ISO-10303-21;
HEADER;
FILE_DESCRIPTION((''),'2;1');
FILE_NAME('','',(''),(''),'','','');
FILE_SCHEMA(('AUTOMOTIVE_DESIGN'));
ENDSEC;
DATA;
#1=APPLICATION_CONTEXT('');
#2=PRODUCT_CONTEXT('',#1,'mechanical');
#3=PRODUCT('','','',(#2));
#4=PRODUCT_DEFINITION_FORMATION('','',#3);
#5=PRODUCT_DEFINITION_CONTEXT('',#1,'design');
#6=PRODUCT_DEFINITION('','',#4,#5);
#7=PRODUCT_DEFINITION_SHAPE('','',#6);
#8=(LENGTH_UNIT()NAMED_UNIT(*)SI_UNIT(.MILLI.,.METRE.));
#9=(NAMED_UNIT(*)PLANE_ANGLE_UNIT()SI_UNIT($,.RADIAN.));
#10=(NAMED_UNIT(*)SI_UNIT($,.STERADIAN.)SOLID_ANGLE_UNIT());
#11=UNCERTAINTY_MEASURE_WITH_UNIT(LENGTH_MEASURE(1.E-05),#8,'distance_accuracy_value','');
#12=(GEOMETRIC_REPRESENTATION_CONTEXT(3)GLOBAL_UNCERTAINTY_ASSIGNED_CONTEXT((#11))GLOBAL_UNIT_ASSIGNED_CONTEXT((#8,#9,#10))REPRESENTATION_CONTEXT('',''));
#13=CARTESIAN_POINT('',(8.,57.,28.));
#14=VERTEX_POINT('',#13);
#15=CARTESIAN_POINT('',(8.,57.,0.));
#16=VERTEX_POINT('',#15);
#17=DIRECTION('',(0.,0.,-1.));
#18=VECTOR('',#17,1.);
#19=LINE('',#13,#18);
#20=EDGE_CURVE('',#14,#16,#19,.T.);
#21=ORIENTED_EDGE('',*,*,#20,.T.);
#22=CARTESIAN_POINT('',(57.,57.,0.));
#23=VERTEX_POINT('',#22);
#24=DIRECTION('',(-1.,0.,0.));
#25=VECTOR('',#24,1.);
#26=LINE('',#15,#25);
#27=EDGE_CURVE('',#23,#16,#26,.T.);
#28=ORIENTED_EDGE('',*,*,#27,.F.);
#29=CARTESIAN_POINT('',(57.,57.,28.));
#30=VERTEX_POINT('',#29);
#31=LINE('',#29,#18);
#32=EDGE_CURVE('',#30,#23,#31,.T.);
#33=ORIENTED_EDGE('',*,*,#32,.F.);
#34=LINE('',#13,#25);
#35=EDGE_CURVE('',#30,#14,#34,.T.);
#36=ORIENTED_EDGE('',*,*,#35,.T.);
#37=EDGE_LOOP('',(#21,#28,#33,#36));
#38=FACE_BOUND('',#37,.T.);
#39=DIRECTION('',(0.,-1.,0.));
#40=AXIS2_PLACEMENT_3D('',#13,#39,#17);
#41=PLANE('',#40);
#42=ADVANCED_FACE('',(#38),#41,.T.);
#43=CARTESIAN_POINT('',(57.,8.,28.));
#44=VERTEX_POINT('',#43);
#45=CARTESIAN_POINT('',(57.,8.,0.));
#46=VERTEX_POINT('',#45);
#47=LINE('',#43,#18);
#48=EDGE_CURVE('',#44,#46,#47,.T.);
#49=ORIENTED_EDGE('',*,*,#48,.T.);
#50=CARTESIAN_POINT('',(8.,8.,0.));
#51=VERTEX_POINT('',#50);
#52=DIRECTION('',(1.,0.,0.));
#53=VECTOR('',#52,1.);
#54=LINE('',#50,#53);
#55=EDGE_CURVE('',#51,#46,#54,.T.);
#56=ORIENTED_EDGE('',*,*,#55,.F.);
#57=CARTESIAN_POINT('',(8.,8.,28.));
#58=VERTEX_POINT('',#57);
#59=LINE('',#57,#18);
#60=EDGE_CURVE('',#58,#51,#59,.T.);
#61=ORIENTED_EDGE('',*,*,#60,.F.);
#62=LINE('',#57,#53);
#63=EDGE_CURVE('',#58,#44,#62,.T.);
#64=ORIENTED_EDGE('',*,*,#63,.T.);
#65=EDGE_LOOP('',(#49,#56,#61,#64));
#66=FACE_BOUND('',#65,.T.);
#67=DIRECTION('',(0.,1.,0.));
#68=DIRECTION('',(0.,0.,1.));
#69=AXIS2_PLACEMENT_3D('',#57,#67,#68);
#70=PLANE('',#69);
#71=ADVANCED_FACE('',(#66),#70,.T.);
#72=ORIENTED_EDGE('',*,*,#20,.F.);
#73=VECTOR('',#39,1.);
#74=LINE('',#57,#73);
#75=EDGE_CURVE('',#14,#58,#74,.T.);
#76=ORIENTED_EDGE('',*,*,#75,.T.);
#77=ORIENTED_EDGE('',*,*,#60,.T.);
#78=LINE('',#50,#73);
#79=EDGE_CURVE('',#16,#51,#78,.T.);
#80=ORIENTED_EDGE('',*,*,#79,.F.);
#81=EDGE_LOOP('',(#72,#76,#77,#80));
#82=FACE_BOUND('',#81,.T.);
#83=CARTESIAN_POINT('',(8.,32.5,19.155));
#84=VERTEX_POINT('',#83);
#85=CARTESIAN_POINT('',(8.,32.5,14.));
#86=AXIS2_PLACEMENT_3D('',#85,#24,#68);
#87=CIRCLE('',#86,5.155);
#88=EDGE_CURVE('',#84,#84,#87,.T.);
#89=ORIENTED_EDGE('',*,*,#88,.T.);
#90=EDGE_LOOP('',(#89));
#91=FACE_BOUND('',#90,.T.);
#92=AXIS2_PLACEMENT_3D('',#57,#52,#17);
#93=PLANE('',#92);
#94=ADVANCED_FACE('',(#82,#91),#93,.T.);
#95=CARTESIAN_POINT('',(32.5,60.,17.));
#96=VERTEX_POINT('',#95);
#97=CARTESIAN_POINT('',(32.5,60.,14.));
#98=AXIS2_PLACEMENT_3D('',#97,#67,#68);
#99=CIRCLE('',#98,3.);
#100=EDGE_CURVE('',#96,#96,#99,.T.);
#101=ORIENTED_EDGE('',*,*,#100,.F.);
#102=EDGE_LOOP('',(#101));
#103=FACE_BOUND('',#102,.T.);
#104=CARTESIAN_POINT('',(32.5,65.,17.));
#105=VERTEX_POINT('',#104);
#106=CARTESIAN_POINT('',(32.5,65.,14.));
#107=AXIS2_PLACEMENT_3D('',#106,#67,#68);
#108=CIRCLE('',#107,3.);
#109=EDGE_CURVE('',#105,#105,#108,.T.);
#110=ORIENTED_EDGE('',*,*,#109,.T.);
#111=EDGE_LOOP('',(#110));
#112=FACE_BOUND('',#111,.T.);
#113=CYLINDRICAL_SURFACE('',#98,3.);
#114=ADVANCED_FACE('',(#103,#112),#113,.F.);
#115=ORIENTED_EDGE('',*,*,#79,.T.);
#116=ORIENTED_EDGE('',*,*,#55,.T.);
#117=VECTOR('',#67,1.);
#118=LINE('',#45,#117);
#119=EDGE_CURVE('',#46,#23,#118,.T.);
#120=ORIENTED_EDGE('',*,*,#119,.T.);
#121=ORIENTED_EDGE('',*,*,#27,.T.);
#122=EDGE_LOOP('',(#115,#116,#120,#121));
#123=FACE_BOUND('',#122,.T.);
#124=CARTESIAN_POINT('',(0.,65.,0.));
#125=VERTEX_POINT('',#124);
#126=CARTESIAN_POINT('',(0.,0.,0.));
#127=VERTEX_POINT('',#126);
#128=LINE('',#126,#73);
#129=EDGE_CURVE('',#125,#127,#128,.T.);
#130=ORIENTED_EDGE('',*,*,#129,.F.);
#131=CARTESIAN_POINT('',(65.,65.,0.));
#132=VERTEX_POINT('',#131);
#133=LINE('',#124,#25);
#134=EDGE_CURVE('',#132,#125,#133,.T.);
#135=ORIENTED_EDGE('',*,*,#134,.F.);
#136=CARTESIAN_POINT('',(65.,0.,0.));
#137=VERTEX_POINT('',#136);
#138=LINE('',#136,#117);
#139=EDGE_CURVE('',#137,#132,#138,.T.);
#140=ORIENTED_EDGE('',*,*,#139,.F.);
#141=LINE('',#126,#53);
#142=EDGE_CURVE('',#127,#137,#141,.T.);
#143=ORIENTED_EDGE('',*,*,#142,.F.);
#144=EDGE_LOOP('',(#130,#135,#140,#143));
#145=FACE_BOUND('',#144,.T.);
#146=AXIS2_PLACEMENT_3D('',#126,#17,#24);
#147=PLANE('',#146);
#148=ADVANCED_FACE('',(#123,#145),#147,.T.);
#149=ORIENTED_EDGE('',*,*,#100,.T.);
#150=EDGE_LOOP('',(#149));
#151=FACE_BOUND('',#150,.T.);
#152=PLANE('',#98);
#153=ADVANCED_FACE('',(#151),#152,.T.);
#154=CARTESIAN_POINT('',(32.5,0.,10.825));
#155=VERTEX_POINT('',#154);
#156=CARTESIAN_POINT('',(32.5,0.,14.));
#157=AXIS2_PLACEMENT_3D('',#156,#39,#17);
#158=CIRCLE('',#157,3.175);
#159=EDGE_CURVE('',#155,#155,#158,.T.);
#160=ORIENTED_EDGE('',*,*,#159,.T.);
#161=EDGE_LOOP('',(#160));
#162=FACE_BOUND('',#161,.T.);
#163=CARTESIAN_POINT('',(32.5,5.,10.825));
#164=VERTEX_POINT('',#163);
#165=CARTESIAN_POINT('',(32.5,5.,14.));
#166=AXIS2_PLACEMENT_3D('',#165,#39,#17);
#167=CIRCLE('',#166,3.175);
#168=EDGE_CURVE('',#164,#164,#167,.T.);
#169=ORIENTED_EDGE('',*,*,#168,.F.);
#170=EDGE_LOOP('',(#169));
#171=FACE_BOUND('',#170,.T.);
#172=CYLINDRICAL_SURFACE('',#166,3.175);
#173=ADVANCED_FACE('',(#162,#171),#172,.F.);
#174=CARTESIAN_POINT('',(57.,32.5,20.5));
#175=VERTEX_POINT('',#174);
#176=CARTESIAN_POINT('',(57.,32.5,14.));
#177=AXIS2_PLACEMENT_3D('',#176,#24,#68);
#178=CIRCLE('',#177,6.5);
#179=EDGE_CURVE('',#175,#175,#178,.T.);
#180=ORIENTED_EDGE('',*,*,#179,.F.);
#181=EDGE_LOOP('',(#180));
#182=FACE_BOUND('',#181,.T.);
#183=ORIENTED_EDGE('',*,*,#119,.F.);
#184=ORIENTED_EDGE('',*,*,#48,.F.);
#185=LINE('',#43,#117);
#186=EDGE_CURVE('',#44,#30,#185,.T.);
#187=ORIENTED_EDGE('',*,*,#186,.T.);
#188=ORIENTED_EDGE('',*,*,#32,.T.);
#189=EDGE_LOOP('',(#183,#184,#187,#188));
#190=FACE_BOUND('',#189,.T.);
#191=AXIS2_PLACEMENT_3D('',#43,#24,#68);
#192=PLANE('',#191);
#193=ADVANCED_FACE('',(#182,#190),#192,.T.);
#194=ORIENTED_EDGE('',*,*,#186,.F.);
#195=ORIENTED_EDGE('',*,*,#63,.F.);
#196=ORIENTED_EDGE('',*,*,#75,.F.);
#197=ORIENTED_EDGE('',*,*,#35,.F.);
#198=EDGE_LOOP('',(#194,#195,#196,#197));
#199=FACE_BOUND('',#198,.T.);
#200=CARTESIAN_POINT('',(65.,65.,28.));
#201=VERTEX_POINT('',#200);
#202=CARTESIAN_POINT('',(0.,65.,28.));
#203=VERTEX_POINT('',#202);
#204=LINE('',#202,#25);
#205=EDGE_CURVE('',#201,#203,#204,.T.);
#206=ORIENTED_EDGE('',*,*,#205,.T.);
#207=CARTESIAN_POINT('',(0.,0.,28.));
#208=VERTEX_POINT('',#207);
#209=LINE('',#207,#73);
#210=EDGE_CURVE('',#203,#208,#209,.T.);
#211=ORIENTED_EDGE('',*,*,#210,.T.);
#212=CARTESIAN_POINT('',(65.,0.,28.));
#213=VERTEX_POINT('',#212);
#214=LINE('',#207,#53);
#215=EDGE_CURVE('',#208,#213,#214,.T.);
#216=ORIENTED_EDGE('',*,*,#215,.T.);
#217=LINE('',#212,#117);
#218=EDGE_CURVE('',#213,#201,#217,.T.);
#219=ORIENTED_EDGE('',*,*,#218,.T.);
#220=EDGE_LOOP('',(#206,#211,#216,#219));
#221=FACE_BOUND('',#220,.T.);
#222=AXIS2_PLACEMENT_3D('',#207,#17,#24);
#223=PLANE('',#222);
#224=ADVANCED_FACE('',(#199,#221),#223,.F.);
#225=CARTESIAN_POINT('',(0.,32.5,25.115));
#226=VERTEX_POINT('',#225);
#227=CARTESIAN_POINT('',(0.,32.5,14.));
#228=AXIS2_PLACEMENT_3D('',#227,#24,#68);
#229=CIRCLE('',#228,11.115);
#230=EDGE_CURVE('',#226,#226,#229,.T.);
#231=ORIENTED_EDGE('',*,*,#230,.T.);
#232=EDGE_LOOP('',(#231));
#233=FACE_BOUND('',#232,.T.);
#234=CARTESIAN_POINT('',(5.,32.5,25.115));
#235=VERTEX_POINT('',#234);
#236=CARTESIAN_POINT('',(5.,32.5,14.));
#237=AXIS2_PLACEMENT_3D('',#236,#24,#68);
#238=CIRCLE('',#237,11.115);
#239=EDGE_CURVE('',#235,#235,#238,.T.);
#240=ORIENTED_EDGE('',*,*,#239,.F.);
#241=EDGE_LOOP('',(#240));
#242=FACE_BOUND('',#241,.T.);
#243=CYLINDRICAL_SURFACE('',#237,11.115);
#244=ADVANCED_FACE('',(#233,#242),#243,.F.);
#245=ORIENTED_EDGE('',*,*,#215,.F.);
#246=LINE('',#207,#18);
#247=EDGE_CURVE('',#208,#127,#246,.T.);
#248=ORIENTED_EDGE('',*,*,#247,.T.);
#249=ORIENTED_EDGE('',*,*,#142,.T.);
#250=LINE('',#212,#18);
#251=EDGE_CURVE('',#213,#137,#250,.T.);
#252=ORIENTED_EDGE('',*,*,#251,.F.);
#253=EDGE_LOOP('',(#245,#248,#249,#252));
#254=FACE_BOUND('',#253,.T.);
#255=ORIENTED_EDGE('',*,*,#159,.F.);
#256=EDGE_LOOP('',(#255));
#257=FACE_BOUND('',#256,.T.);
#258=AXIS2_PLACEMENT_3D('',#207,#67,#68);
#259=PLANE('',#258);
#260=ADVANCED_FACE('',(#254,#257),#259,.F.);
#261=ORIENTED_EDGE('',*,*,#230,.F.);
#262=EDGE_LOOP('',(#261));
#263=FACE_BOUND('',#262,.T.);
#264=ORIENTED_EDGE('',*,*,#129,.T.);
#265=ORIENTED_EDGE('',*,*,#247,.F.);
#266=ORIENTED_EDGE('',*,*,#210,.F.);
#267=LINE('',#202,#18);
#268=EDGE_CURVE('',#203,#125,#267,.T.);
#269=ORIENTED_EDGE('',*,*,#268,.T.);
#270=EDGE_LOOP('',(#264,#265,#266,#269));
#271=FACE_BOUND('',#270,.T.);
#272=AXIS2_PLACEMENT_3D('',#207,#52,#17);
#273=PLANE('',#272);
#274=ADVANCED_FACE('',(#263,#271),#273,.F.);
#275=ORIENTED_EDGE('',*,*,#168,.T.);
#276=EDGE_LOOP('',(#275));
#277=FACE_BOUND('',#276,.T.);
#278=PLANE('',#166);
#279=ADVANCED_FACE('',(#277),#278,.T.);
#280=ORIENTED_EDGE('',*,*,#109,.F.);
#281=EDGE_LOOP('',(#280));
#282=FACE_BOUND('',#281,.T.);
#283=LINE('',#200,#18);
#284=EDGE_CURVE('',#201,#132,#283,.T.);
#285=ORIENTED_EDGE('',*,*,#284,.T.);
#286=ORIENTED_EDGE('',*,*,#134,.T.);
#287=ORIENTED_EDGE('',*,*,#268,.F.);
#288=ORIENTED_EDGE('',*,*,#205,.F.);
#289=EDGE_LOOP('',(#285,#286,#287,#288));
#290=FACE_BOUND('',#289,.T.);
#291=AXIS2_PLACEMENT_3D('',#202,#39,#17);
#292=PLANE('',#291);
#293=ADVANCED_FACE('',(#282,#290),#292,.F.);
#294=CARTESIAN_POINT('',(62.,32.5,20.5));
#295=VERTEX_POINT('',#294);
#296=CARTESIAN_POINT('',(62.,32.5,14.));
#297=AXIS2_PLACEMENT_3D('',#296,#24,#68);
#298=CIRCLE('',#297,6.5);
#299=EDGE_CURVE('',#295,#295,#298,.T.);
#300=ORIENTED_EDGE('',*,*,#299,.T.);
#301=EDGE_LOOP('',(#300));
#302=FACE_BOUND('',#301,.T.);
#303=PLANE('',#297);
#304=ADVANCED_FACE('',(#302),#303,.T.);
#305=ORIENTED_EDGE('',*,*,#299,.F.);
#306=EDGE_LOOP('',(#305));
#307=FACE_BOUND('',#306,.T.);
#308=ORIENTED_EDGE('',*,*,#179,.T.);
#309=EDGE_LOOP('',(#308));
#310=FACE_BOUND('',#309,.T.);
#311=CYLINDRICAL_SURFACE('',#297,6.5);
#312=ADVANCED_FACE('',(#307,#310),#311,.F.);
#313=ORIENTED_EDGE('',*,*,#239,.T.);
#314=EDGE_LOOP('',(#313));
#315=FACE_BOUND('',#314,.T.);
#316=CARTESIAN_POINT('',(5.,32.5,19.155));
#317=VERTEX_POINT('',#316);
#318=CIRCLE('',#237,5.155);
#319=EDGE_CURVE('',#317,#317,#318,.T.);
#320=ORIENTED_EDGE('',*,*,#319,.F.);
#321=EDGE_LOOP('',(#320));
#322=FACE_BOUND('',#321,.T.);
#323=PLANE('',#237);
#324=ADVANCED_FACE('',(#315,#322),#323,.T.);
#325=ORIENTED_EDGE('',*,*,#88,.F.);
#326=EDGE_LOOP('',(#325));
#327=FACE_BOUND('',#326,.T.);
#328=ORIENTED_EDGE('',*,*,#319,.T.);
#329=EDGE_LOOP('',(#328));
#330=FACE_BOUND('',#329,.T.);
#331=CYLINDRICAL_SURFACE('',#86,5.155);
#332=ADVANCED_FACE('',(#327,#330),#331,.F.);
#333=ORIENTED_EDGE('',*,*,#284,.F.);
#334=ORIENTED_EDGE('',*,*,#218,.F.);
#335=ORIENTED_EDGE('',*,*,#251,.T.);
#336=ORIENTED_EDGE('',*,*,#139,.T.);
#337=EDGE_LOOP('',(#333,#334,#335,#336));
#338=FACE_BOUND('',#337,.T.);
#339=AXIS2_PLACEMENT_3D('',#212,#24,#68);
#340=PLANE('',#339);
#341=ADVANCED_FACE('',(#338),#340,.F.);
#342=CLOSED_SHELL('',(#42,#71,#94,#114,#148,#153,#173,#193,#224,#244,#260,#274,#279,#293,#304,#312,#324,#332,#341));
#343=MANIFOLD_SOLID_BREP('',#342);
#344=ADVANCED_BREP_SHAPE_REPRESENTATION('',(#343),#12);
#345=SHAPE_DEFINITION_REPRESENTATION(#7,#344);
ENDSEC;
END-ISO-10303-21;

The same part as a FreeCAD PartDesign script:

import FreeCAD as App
import Part
import Sketcher
from FreeCAD import Vector


def add_polygon(sketch, points):
    """Adds a closed chain of lines whose ends are joined by coincident constraints."""
    first, n = sketch.GeometryCount, len(points)
    for a, b in zip(points, points[1:] + points[:1]):
        sketch.addGeometry(Part.LineSegment(App.Vector(*a, 0), App.Vector(*b, 0)), False)
    for i in range(n):
        sketch.addConstraint(Sketcher.Constraint("Coincident", first + i, 2, first + (i + 1) % n, 1))

doc = App.newDocument("Part")
body = doc.addObject("PartDesign::Body", "Body")

# Sketch on XY plane
sketch1 = body.newObject("Sketcher::SketchObject", "Sketch")
sketch1.AttachmentSupport = (doc.getObject("XY_Plane"), [""])
sketch1.MapMode = "FlatFace"
add_polygon(sketch1, [(0, 65), (0, 0), (65, 0), (65, 65)])  # lines 0-3
add_polygon(sketch1, [(57, 8), (8, 8), (8, 57), (57, 57)])  # lines 4-7
sketch1.addConstraint([
    Sketcher.Constraint("Vertical", 0),
    Sketcher.Constraint("Horizontal", 1),
    Sketcher.Constraint("Vertical", 2),
    Sketcher.Constraint("Horizontal", 3),
    Sketcher.Constraint("Horizontal", 4),
    Sketcher.Constraint("Vertical", 5),
    Sketcher.Constraint("Horizontal", 6),
    Sketcher.Constraint("Vertical", 7),
    Sketcher.Constraint("Coincident", 0, 2, -1, 1),
    Sketcher.Constraint("Equal", 3, 0),
    Sketcher.Constraint("Equal", 6, 5),
    Sketcher.Constraint("DistanceX", 1, 1, 1, 2, 65.0),
    Sketcher.Constraint("DistanceX", 4, 2, 4, 1, 49.0),
    Sketcher.Constraint("DistanceX", -1, 1, 4, 2, 8.0),
    Sketcher.Constraint("DistanceY", -1, 1, 4, 2, 8.0),
])
pad1 = body.newObject("PartDesign::Pad", "Pad")
pad1.Profile = sketch1
pad1.Length = 28

# Sketch on YZ plane
sketch2 = body.newObject("Sketcher::SketchObject", "Sketch001")
sketch2.AttachmentSupport = (doc.getObject("YZ_Plane"), [""])
sketch2.MapMode = "FlatFace"
sketch2.addGeometry(Part.Circle(Vector(32, 14, 0), Vector(0, 0, 1), 11), False)
sketch2.addConstraint([
    Sketcher.Constraint("Diameter", 0, 22.23),
    Sketcher.Constraint("DistanceY", -1, 1, 0, 3, 14.0),
    Sketcher.Constraint("DistanceX", -1, 1, 0, 3, 32.5),
])
pocket1 = body.newObject("PartDesign::Pocket", "Pocket")
pocket1.Profile = sketch2
pocket1.Length = 5
pocket1.Reversed = True

# Sketch on YZ plane
sketch3 = body.newObject("Sketcher::SketchObject", "Sketch002")
sketch3.AttachmentSupport = (doc.getObject("YZ_Plane"), [""])
sketch3.MapMode = "FlatFace"
sketch3.addGeometry(Part.Circle(Vector(32, 14, 0), Vector(0, 0, 1), 5), False)
sketch3.addConstraint([
    Sketcher.Constraint("Diameter", 0, 10.31),
    Sketcher.Constraint("DistanceY", -1, 1, 0, 3, 14.0),
    Sketcher.Constraint("DistanceX", -1, 1, 0, 3, 32.5),
])
pocket2 = body.newObject("PartDesign::Pocket", "Pocket001")
pocket2.Profile = sketch3
pocket2.Length = 8
pocket2.Reversed = True

# Sketch on YZ plane
sketch4 = body.newObject("Sketcher::SketchObject", "Sketch003")
sketch4.AttachmentSupport = (doc.getObject("YZ_Plane"), [""])
sketch4.MapMode = "FlatFace"
sketch4.AttachmentOffset = App.Placement(Vector(0, 0, 57), App.Rotation())
sketch4.addGeometry(Part.Circle(Vector(32, 14, 0), Vector(0, 0, 1), 6), False)
sketch4.addConstraint([
    Sketcher.Constraint("Diameter", 0, 13.0),
    Sketcher.Constraint("DistanceY", -1, 1, 0, 3, 14.0),
    Sketcher.Constraint("DistanceX", -1, 1, 0, 3, 32.5),
])
pocket3 = body.newObject("PartDesign::Pocket", "Pocket002")
pocket3.Profile = sketch4
pocket3.Length = 5
pocket3.Reversed = True

# Sketch on XZ plane
sketch5 = body.newObject("Sketcher::SketchObject", "Sketch004")
sketch5.AttachmentSupport = (doc.getObject("XZ_Plane"), [""])
sketch5.MapMode = "FlatFace"
sketch5.AttachmentOffset = App.Placement(Vector(0, 0, -65), App.Rotation())
sketch5.addGeometry(Part.Circle(Vector(32.5, 14, 0), Vector(0, 0, 1), 3), False)
sketch5.addConstraint([
    Sketcher.Constraint("Diameter", 0, 6.0),
    Sketcher.Constraint("DistanceY", -1, 1, 0, 3, 14.0),
    Sketcher.Constraint("DistanceX", -1, 1, 0, 3, 32.5),
])
pocket4 = body.newObject("PartDesign::Pocket", "Pocket003")
pocket4.Profile = sketch5
pocket4.Length = 5
pocket4.Reversed = True

# Sketch on XZ plane
sketch6 = body.newObject("Sketcher::SketchObject", "Sketch005")
sketch6.AttachmentSupport = (doc.getObject("XZ_Plane"), [""])
sketch6.MapMode = "FlatFace"
sketch6.addGeometry(Part.Circle(Vector(32.5, 14, 0), Vector(0, 0, 1), 3.2), False)
sketch6.addConstraint([
    Sketcher.Constraint("Diameter", 0, 6.35),
    Sketcher.Constraint("DistanceY", -1, 1, 0, 3, 14.0),
    Sketcher.Constraint("DistanceX", -1, 1, 0, 3, 32.5),
])
pocket5 = body.newObject("PartDesign::Pocket", "Pocket004")
pocket5.Profile = sketch6
pocket5.Length = 5

doc.recompute()
